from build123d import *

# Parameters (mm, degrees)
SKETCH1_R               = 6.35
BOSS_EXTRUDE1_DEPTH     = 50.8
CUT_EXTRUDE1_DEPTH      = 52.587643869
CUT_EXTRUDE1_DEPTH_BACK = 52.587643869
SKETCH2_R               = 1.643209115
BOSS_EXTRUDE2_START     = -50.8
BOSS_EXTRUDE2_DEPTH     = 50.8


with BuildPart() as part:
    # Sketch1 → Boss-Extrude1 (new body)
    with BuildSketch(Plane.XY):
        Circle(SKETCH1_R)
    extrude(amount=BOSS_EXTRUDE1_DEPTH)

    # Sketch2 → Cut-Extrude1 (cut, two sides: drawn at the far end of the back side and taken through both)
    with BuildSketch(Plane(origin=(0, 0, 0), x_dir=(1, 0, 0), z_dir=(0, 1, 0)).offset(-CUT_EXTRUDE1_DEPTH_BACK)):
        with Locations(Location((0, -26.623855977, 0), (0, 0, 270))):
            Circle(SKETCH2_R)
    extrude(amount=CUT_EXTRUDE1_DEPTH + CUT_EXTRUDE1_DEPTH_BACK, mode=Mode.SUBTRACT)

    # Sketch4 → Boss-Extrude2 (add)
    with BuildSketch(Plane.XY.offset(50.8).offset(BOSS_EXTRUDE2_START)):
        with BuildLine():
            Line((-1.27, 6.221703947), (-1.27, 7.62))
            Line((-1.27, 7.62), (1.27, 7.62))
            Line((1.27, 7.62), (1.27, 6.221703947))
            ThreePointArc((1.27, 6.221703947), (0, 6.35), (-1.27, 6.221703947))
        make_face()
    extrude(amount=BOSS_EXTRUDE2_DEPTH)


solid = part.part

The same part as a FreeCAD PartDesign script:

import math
import FreeCAD as App
import Part
import Sketcher
Q = App.Units.Quantity

doc = App.newDocument("Part")
body = doc.addObject("PartDesign::Body", "Body")

sketch1 = doc.addObject("Sketcher::SketchObject", "Sketch")
body.addObject(sketch1)
sketch1.AttachmentSupport = (doc.XY_Plane, [""])
sketch1.MapMode = "FlatFace"
sketch1.addGeometry(Part.Circle(App.Vector(0, 0, 0), App.Vector(0, 0, 1), 6), False)
sketch1.addConstraint(Sketcher.Constraint("Coincident", 0, 3, -1, 1))
sketch1.addConstraint(Sketcher.Constraint("Diameter", 0, Q("0.5 in")))
pad1 = doc.addObject("PartDesign::Pad", "Pad")
body.addObject(pad1)
pad1.Profile = sketch1
pad1.Length = Q("2 in")

sketch2 = doc.addObject("Sketcher::SketchObject", "Sketch001")
body.addObject(sketch2)
sketch2.AttachmentSupport = (doc.XZ_Plane, [""])
sketch2.MapMode = "FlatFace"
sketch2.addGeometry(Part.Circle(App.Vector(0, 26.6, 0), App.Vector(0, 0, 1), 1.6), False)
sketch2.addConstraint(Sketcher.Constraint("PointOnObject", 0, 3, -2))
sketch2.addConstraint(Sketcher.Constraint("Diameter", 0, 3.286418))
sketch2.addConstraint(Sketcher.Constraint("DistanceY", -1, 1, 0, 3, 26.623856))
pocket1 = doc.addObject("PartDesign::Pocket", "Pocket")
body.addObject(pocket1)
pocket1.Profile = sketch2
pocket1.Type = "ThroughAll"
pocket1.Midplane = True

sketch3 = doc.addObject("Sketcher::SketchObject", "Sketch002")
body.addObject(sketch3)
sketch3.AttachmentSupport = (doc.XY_Plane, [""])
sketch3.MapMode = "FlatFace"
sketch3.addGeometry(Part.LineSegment(App.Vector(-1.3, 7.6, 0), App.Vector(-1.3, 6.2, 0)), False)
sketch3.addGeometry(Part.ArcOfCircle(Part.Circle(App.Vector(0, 0, 0), App.Vector(0, 0, 1), 6.4), math.radians(78), math.radians(102)), False)
sketch3.addGeometry(Part.LineSegment(App.Vector(1.3, 6.2, 0), App.Vector(1.3, 7.6, 0)), False)
sketch3.addGeometry(Part.LineSegment(App.Vector(1.3, 7.6, 0), App.Vector(-1.3, 7.6, 0)), False)
sketch3.addConstraint(Sketcher.Constraint("Coincident", 0, 2, 1, 2))
sketch3.addConstraint(Sketcher.Constraint("Coincident", 1, 1, 2, 1))
sketch3.addConstraint(Sketcher.Constraint("Coincident", 2, 2, 3, 1))
sketch3.addConstraint(Sketcher.Constraint("Coincident", 3, 2, 0, 1))
sketch3.addConstraint(Sketcher.Constraint("Vertical", 0))
sketch3.addConstraint(Sketcher.Constraint("Vertical", 2))
sketch3.addConstraint(Sketcher.Constraint("Horizontal", 3))
sketch3.addConstraint(Sketcher.Constraint("Coincident", 1, 3, -1, 1))
sketch3.addConstraint(Sketcher.Constraint("Horizontal", 0, 2, 1, 1))
sketch3.addConstraint(Sketcher.Constraint("Radius", 1, Q("0.25 in")))
sketch3.addConstraint(Sketcher.Constraint("DistanceX", 3, 2, 3, 1, Q("0.1 in")))
sketch3.addConstraint(Sketcher.Constraint("DistanceY", -1, 1, 2, 2, Q("0.3 in")))
pad2 = doc.addObject("PartDesign::Pad", "Pad001")
body.addObject(pad2)
pad2.Profile = sketch3
pad2.Length = Q("2 in")

doc.recompute()
